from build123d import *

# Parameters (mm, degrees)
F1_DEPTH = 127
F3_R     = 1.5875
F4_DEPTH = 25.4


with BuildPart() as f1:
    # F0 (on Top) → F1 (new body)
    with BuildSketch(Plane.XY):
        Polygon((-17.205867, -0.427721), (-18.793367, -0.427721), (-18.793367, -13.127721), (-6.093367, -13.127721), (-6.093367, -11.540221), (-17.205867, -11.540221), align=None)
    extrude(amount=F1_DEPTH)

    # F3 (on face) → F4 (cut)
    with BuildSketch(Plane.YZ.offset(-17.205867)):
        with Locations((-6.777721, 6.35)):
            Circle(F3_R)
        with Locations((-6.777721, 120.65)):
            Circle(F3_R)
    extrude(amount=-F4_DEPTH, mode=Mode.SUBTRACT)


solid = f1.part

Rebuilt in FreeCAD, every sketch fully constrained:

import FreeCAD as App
import Part
import Sketcher
Q = App.Units.Quantity


def add_polygon(sketch, points):
    """Adds a closed chain of lines whose ends are joined by coincident constraints."""
    first, n = sketch.GeometryCount, len(points)
    for a, b in zip(points, points[1:] + points[:1]):
        sketch.addGeometry(Part.LineSegment(App.Vector(*a, 0), App.Vector(*b, 0)), False)
    for i in range(n):
        sketch.addConstraint(Sketcher.Constraint("Coincident", first + i, 2, first + (i + 1) % n, 1))

doc = App.newDocument("Part")
body = doc.addObject("PartDesign::Body", "Body")

sketch1 = body.newObject("Sketcher::SketchObject", "Sketch")
sketch1.AttachmentSupport = (doc.getObject("XY_Plane"), [""])
sketch1.MapMode = "FlatFace"
add_polygon(sketch1, [(-17.2, -0.4), (-18.8, -0.4), (-18.8, -13.1), (-6.1, -13.1), (-6.1, -11.5), (-17.2, -11.5)])
sketch1.addConstraint([
    Sketcher.Constraint("Horizontal", 0),
    Sketcher.Constraint("Vertical", 1),
    Sketcher.Constraint("Horizontal", 2),
    Sketcher.Constraint("Vertical", 3),
    Sketcher.Constraint("Horizontal", 4),
    Sketcher.Constraint("Vertical", 5),
    Sketcher.Constraint("Equal", 2, 1),
    Sketcher.Constraint("Equal", 0, 3),
    Sketcher.Constraint("DistanceX", 2, 1, 2, 2, Q("0.5 in")),
    Sketcher.Constraint("DistanceX", 0, 2, 0, 1, Q("0.0625 in")),
    Sketcher.Constraint("DistanceY", 0, 2, -1, 1, Q("0.427721 mm")),
    Sketcher.Constraint("DistanceX", 0, 2, -1, 1, Q("18.793367 mm")),
])
pad1 = body.newObject("PartDesign::Pad", "Pad")
pad1.Profile = sketch1
pad1.Length = Q("5 in")

sketch2 = body.newObject("Sketcher::SketchObject", "Sketch001")
sketch2.AttachmentSupport = (doc.getObject("YZ_Plane"), [""])
sketch2.MapMode = "FlatFace"
sketch2.AttachmentOffset = App.Placement(App.Vector(0, 0, -17.205867), App.Rotation())
sketch2.addGeometry([
    Part.Circle(App.Vector(-6.8, 6.3, 0), App.Vector(0, 0, 1), 1.6),
    Part.Circle(App.Vector(-6.8, 120.7, 0), App.Vector(0, 0, 1), 1.6),
], False)
sketch2.addConstraint([
    Sketcher.Constraint("Equal", 0, 1),
    Sketcher.Constraint("Vertical", 0, 3, 1, 3),
    Sketcher.Constraint("Diameter", 0, Q("0.125 in")),
    Sketcher.Constraint("DistanceY", 0, 3, 1, 3, Q("4.5 in")),
    Sketcher.Constraint("DistanceY", -1, 1, 0, 3, Q("0.25 in")),
    Sketcher.Constraint("DistanceX", 0, 3, -1, 1, Q("6.777721 mm")),
])
pocket1 = body.newObject("PartDesign::Pocket", "Pocket")
pocket1.Profile = sketch2
pocket1.Length = Q("1 in")

doc.recompute()
